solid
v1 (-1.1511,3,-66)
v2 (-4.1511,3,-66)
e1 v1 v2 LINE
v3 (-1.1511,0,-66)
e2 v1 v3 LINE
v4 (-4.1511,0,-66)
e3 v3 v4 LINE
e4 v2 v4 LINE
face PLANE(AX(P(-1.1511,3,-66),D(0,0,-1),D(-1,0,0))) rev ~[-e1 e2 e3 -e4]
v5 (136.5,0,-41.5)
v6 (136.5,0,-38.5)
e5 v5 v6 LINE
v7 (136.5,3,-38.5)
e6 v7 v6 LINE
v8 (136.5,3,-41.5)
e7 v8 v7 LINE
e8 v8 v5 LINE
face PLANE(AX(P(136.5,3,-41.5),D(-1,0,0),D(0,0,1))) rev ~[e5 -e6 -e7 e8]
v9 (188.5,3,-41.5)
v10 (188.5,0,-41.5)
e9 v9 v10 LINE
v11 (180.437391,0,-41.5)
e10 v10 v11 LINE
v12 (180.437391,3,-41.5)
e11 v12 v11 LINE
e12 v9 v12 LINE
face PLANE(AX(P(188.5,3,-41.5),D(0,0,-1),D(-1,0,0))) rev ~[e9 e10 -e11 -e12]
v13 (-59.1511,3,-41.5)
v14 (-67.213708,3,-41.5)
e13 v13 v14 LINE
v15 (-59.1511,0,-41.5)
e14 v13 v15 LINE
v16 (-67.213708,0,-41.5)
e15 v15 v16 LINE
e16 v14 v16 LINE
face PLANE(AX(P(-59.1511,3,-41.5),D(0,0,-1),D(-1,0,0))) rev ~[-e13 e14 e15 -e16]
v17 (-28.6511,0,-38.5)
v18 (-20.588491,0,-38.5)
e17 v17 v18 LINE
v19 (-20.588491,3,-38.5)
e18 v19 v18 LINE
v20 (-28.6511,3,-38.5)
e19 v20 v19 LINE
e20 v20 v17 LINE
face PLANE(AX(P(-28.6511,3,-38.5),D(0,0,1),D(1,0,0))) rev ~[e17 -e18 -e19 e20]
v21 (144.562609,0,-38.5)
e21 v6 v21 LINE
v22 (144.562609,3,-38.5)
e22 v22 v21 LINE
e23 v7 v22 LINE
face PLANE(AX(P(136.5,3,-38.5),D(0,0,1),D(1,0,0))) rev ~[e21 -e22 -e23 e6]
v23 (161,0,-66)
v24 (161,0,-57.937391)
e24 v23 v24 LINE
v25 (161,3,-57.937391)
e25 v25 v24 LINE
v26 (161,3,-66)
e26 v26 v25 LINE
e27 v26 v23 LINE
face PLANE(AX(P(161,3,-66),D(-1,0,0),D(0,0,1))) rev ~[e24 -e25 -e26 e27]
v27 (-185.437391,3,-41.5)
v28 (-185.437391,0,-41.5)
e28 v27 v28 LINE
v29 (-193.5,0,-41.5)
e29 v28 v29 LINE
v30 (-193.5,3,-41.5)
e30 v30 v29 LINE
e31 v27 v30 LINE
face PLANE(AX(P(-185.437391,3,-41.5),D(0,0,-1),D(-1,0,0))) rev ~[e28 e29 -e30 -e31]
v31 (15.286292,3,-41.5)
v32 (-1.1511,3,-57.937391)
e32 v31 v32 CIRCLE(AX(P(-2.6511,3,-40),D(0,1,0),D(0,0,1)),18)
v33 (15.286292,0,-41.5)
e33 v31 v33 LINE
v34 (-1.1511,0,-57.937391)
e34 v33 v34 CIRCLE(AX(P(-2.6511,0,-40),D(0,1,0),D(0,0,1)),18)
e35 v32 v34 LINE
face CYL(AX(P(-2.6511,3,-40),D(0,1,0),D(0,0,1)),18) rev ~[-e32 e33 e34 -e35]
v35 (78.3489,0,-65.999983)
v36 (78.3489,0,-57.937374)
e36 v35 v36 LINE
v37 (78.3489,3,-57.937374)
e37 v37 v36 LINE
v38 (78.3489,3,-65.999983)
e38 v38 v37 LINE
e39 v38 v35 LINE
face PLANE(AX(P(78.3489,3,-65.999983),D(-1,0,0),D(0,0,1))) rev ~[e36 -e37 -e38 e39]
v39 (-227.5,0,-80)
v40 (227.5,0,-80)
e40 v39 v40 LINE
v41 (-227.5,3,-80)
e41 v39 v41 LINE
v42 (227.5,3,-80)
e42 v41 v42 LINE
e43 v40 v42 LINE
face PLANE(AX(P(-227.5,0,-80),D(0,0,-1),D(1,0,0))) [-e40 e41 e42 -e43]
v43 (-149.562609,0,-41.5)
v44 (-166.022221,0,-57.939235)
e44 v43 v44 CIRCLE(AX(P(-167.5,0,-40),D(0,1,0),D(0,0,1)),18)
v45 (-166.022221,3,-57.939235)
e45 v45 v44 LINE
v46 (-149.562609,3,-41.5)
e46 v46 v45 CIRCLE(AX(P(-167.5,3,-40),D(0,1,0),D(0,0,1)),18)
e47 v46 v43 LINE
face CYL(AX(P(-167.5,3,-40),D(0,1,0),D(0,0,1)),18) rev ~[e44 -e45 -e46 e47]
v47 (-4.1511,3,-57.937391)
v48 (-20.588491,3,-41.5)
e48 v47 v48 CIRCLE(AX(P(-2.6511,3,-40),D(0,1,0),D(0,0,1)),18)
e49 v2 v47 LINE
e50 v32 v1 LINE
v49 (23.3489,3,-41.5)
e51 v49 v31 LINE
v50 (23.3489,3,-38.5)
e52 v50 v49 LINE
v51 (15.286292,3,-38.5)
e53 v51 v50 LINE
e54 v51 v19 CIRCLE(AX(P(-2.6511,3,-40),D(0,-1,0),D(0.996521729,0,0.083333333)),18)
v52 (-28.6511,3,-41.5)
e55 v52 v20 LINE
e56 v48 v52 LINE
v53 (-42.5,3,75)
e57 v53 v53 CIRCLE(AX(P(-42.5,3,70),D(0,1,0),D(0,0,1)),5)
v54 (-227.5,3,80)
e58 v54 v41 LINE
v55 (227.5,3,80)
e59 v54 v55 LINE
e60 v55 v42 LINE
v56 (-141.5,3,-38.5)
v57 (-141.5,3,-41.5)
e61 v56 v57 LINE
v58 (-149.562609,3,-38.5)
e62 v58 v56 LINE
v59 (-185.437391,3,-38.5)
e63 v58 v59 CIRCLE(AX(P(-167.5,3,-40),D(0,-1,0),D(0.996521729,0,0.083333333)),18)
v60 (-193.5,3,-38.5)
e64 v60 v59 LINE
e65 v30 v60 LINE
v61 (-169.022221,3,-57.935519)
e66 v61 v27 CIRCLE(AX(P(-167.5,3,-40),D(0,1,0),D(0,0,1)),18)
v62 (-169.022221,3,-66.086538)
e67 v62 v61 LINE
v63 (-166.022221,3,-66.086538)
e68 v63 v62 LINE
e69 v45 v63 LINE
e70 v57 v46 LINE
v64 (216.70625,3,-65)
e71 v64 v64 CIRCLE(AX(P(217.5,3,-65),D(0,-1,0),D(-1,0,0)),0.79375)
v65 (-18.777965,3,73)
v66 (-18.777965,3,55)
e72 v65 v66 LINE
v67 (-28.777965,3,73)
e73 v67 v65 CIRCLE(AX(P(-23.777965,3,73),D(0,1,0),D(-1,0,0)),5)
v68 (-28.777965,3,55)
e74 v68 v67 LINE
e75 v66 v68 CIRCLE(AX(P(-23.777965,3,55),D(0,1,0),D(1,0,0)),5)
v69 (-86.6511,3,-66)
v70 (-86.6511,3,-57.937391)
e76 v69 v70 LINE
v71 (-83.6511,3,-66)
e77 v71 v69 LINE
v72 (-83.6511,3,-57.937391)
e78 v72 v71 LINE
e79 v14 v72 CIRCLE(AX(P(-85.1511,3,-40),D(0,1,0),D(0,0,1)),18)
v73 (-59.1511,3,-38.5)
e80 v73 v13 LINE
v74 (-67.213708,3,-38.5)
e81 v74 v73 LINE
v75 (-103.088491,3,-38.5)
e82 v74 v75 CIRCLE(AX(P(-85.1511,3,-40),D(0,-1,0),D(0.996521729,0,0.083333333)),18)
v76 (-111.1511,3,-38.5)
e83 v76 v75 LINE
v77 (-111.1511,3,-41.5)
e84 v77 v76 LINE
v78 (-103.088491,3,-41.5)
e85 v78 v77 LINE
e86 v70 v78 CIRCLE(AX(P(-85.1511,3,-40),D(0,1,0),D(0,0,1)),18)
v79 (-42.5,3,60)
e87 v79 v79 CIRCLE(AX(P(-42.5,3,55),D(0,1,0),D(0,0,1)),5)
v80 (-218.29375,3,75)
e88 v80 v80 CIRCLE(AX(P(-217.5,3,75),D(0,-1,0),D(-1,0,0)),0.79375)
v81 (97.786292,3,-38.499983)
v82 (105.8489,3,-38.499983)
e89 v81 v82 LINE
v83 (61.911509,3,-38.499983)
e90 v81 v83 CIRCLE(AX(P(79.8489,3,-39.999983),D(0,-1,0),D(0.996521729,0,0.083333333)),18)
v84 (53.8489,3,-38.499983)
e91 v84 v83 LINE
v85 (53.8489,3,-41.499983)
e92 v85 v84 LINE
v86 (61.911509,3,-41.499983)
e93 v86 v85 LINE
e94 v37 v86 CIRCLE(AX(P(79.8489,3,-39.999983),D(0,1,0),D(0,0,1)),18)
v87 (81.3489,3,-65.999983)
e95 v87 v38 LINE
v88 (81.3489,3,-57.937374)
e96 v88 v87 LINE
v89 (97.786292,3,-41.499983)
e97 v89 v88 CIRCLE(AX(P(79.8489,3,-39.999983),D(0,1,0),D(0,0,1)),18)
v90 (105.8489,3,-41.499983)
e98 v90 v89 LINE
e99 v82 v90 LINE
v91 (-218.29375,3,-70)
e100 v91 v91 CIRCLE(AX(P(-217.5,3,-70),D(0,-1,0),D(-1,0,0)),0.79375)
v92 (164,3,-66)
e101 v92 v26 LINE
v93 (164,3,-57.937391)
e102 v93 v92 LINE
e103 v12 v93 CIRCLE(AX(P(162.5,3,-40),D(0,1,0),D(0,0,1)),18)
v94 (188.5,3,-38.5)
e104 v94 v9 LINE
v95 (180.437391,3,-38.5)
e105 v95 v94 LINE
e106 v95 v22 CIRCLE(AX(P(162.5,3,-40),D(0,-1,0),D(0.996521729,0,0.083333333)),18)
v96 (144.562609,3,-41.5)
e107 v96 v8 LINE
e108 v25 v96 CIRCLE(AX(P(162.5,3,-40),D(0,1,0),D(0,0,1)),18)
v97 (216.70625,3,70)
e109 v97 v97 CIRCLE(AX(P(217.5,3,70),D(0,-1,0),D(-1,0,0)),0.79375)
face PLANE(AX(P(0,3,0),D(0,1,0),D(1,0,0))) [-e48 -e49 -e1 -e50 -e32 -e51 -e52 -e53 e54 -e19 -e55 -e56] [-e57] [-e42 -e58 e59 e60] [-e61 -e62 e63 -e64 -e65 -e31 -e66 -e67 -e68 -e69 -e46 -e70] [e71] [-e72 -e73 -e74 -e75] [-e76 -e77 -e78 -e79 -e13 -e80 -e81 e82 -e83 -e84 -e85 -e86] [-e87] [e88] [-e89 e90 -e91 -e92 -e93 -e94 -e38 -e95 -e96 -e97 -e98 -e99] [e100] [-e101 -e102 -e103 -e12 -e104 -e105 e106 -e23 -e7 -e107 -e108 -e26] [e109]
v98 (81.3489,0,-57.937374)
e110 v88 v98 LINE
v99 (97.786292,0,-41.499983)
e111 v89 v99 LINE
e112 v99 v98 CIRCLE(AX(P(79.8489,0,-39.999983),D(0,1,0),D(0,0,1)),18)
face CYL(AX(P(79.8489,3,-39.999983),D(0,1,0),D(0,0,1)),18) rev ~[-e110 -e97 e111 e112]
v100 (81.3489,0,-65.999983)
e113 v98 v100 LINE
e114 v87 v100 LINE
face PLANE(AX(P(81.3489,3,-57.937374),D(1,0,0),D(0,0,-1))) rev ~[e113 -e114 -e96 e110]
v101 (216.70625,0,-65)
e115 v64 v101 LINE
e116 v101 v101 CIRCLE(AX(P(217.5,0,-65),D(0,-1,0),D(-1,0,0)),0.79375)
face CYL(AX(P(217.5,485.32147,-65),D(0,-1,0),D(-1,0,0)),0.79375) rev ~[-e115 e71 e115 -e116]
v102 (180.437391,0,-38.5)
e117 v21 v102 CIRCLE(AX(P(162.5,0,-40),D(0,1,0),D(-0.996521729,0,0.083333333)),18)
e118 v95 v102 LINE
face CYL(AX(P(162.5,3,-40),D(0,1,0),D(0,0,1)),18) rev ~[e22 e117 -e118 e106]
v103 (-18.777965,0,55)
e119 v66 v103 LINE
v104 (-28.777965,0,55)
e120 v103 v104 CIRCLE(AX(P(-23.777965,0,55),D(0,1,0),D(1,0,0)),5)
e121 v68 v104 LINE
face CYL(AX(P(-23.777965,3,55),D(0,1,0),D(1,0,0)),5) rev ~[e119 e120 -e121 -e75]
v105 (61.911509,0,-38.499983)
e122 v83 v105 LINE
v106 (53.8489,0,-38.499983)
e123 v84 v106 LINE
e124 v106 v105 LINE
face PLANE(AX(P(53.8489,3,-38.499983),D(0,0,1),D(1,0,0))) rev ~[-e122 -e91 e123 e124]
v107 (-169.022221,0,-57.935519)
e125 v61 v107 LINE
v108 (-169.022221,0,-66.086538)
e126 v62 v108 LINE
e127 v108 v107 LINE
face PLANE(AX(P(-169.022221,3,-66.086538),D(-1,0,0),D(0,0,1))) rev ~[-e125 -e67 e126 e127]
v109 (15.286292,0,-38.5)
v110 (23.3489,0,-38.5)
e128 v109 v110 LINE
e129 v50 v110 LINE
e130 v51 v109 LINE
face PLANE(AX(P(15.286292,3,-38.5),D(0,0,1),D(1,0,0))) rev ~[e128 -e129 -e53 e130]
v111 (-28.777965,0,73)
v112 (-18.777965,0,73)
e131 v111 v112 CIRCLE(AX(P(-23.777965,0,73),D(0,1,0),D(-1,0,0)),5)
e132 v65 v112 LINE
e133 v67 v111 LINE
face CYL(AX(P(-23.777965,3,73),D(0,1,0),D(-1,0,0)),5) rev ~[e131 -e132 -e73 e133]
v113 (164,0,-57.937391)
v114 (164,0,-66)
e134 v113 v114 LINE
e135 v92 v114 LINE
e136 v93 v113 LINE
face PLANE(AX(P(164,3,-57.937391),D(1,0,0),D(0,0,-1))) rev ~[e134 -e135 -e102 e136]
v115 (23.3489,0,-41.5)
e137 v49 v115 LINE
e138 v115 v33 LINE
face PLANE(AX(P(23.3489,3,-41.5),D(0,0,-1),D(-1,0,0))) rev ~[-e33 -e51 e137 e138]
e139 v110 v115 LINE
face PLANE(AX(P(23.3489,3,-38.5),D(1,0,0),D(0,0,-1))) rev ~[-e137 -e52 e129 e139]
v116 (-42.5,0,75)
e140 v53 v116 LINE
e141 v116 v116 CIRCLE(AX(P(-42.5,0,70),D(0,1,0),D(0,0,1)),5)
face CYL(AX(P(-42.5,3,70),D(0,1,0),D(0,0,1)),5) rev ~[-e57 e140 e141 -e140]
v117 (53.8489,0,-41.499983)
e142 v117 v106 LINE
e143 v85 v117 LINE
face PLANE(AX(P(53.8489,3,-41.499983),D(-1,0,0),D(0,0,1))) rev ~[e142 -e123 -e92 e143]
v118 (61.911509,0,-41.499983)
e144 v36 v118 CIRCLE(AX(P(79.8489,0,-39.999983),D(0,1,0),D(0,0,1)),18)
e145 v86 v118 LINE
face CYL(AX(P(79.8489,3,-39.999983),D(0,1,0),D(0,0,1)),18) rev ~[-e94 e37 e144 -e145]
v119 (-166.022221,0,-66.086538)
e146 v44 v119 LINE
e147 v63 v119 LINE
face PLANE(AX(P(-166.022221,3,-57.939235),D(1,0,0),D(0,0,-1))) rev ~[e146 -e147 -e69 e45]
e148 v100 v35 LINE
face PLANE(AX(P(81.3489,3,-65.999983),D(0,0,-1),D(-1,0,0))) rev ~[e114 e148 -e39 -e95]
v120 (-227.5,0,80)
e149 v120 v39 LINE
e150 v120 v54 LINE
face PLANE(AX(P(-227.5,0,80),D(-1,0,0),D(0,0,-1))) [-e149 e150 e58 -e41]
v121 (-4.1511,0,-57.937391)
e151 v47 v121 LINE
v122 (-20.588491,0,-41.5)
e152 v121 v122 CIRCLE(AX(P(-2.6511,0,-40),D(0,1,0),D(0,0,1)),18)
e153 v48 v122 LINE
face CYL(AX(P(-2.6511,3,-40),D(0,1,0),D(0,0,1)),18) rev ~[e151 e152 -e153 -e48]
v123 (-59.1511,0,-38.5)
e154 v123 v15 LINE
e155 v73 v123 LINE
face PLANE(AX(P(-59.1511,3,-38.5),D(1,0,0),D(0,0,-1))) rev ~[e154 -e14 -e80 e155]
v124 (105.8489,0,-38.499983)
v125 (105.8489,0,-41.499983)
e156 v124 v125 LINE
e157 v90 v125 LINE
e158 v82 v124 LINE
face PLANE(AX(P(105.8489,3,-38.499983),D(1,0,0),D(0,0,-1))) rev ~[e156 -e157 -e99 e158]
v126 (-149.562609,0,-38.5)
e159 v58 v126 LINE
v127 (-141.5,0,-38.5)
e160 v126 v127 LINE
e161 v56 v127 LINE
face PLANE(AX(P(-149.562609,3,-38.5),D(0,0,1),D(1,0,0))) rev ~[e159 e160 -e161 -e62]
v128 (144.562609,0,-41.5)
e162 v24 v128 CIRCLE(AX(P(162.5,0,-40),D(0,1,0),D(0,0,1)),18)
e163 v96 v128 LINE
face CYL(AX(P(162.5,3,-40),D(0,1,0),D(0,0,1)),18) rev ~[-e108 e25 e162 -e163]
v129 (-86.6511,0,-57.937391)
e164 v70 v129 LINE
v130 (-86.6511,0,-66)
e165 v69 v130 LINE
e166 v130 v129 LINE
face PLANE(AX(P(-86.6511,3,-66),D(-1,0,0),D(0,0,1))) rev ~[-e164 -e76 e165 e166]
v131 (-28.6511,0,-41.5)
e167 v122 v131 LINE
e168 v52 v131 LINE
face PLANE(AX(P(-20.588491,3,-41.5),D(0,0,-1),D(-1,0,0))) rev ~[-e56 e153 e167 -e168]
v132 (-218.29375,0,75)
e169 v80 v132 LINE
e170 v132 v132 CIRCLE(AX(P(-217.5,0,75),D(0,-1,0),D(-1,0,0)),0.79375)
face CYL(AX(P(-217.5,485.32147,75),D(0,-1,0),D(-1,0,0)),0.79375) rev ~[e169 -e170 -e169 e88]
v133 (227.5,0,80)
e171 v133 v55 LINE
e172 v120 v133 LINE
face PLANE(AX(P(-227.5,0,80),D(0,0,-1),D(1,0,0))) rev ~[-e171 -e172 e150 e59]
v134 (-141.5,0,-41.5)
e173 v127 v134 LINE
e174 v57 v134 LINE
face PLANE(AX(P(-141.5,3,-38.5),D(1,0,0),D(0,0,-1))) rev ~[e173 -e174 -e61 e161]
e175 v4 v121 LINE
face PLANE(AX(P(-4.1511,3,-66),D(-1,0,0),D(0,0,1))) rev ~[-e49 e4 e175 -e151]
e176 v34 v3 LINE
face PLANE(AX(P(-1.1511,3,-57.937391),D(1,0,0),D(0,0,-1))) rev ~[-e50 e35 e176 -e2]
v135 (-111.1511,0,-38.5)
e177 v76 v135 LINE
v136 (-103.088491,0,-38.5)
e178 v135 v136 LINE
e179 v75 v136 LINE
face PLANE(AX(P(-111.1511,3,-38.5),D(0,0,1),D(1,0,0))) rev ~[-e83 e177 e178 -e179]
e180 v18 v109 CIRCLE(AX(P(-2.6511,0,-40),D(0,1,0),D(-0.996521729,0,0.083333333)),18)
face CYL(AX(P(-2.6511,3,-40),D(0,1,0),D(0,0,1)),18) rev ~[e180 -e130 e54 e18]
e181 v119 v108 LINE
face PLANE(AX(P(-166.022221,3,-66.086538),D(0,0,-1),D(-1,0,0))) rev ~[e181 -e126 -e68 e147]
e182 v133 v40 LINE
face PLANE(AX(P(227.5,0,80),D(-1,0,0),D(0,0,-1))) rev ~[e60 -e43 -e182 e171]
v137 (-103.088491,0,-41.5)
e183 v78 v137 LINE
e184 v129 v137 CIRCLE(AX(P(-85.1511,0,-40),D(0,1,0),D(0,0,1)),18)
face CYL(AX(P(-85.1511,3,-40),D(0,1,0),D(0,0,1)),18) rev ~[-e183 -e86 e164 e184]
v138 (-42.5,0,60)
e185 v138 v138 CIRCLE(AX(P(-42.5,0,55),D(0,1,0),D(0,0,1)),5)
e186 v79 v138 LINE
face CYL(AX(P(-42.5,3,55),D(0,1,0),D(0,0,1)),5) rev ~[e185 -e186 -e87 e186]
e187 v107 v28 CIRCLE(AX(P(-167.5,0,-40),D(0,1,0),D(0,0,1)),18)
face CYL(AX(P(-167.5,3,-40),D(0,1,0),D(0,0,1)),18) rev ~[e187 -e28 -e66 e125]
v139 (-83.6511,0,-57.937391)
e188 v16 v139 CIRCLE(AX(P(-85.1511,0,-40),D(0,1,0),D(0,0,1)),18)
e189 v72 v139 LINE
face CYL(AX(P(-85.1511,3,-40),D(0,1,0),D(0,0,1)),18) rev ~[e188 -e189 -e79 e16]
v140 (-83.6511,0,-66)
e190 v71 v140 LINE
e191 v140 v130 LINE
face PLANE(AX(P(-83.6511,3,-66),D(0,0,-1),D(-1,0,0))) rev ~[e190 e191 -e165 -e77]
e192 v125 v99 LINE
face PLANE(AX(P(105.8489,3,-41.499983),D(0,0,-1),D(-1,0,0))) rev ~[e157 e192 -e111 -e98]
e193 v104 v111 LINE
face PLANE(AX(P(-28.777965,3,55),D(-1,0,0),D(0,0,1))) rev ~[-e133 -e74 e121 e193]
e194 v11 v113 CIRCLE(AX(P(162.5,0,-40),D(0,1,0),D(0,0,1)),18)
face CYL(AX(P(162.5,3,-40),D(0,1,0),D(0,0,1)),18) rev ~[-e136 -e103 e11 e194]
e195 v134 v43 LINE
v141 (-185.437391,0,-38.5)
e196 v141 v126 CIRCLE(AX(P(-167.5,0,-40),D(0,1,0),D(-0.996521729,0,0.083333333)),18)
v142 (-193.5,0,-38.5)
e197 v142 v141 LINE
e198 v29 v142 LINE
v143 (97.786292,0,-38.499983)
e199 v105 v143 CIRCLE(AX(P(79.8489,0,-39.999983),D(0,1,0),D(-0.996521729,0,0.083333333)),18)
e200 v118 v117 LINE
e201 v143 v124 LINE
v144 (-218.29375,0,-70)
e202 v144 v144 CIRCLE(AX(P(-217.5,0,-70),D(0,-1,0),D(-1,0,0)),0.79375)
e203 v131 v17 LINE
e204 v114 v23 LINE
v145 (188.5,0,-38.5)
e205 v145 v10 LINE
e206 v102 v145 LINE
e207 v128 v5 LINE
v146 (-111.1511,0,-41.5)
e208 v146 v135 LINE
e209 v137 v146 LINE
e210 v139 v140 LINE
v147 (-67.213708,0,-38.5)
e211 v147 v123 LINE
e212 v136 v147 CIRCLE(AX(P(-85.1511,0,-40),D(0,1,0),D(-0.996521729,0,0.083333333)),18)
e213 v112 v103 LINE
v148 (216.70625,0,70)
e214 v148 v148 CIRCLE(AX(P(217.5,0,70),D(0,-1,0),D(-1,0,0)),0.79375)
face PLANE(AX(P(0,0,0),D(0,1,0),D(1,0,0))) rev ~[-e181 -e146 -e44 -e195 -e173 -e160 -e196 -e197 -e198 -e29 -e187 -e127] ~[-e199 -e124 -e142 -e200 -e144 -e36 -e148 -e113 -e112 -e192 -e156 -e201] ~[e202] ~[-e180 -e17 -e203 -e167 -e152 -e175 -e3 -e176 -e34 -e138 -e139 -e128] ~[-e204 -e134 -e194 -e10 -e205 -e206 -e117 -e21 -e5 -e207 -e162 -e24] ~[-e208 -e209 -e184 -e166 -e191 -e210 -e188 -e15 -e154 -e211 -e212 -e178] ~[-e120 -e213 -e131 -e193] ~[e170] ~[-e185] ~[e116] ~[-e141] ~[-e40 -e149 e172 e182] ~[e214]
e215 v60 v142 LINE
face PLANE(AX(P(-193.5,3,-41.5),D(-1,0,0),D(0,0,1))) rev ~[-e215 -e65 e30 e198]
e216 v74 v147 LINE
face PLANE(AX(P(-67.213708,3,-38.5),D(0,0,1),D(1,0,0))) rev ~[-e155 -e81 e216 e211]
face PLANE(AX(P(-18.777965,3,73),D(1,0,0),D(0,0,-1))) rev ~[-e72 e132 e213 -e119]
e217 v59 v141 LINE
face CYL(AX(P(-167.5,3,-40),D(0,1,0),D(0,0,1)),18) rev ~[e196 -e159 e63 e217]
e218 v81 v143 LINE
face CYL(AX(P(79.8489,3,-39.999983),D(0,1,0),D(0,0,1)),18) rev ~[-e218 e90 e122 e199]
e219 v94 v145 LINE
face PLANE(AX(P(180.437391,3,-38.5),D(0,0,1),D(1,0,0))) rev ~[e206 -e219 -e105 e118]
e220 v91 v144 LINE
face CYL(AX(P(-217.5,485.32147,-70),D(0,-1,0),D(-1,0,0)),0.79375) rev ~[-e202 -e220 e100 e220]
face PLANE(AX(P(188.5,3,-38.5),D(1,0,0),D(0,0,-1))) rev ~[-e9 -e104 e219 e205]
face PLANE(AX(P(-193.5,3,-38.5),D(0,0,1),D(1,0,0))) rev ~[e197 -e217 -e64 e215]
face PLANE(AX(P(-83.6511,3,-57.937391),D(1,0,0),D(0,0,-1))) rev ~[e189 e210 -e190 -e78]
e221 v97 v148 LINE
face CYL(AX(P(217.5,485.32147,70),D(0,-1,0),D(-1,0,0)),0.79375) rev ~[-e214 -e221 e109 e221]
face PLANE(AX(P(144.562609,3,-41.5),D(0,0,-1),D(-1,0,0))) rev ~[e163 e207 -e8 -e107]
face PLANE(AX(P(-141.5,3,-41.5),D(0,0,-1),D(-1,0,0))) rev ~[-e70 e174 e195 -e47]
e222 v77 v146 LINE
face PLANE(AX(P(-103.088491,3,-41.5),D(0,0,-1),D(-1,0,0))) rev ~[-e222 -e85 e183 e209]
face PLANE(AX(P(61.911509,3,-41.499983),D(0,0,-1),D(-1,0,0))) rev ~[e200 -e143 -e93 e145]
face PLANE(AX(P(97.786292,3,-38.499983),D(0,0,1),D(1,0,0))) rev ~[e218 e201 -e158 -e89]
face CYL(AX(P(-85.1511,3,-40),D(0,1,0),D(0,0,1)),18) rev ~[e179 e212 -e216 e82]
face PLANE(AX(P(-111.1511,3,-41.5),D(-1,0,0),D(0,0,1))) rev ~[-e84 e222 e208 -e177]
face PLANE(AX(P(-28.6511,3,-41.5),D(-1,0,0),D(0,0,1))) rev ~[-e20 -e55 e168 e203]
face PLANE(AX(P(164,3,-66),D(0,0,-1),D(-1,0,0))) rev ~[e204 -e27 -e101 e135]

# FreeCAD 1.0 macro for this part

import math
import FreeCAD as App
import Part
import Sketcher
Q = App.Units.Quantity


def add_polygon(sketch, points):
    """Adds a closed chain of lines whose ends are joined by coincident constraints."""
    first, n = sketch.GeometryCount, len(points)
    for a, b in zip(points, points[1:] + points[:1]):
        sketch.addGeometry(Part.LineSegment(App.Vector(*a, 0), App.Vector(*b, 0)), False)
    for i in range(n):
        sketch.addConstraint(Sketcher.Constraint("Coincident", first + i, 2, first + (i + 1) % n, 1))

doc = App.newDocument("Part")
body = doc.addObject("PartDesign::Body", "Body")

sketch1 = doc.addObject("Sketcher::SketchObject", "Sketch")
body.addObject(sketch1)
sketch1.AttachmentSupport = (doc.XZ_Plane, [""])
sketch1.MapMode = "FlatFace"
add_polygon(sketch1, [(-228, -80), (-228, 80), (228, 80), (228, -80)])
sketch1.addConstraint([
    Sketcher.Constraint("Vertical", 0),
    Sketcher.Constraint("Horizontal", 1),
    Sketcher.Constraint("Vertical", 2),
    Sketcher.Constraint("Horizontal", 3),
    Sketcher.Constraint("Symmetric", 0, 2, 2, 2, -1, 1),
    Sketcher.Constraint("DistanceX", 1, 1, 1, 2, Q("455 mm")),
    Sketcher.Constraint("DistanceY", 0, 1, 0, 2, Q("160 mm")),
])
pad1 = doc.addObject("PartDesign::Pad", "Pad")
body.addObject(pad1)
pad1.Profile = sketch1
pad1.Length = 3
pad1.Reversed = True

sketch2 = doc.addObject("Sketcher::SketchObject", "Sketch001")
body.addObject(sketch2)
sketch2.AttachmentSupport = (doc.XZ_Plane, [""])
sketch2.MapMode = "FlatFace"
sketch2.AttachmentOffset = App.Placement(App.Vector(0, 0, -3), App.Rotation())
sketch2.addGeometry([
    Part.Circle(App.Vector(-168, -40, 0), App.Vector(0, 0, 1), 18),
    Part.Circle(App.Vector(-85, -40, 0), App.Vector(0, 0, 1), 18),
    Part.Circle(App.Vector(-3, -40, 0), App.Vector(0, 0, 1), 18),
    Part.Circle(App.Vector(80, -40, 0), App.Vector(0, 0, 1), 18),
    Part.Circle(App.Vector(162, -40, 0), App.Vector(0, 0, 1), 18),
    Part.Circle(App.Vector(-42, 55, 0), App.Vector(0, 0, 1), 5),
    Part.Circle(App.Vector(-42, 70, 0), App.Vector(0, 0, 1), 5),
    Part.LineSegment(App.Vector(-29, 55, 0), App.Vector(-29, 73, 0)),
    Part.ArcOfCircle(Part.Circle(App.Vector(-24, 73, 0), App.Vector(0, 0, 1), 5), math.radians(0), math.radians(180)),
    Part.LineSegment(App.Vector(-19, 73, 0), App.Vector(-19, 55, 0)),
    Part.ArcOfCircle(Part.Circle(App.Vector(-24, 55, 0), App.Vector(0, 0, 1), 5), math.radians(180), math.radians(360)),
], False)
sketch2.addConstraint([
    Sketcher.Constraint("Tangent", 7, 2, 8, 2),
    Sketcher.Constraint("Tangent", 8, 1, 9, 1),
    Sketcher.Constraint("Tangent", 9, 2, 10, 2),
    Sketcher.Constraint("Tangent", 10, 1, 7, 1),
    Sketcher.Constraint("Vertical", 7),
    Sketcher.Constraint("Vertical", 9),
    Sketcher.Constraint("Equal", 0, 1),
    Sketcher.Constraint("Equal", 1, 2),
    Sketcher.Constraint("Equal", 2, 3),
    Sketcher.Constraint("Equal", 3, 4),
    Sketcher.Constraint("Equal", 5, 6),
    Sketcher.Constraint("Equal", 6, 8),
    Sketcher.Constraint("Horizontal", 0, 3, 1, 3),
    Sketcher.Constraint("Horizontal", 1, 3, 2, 3),
    Sketcher.Constraint("Horizontal", 2, 3, 4, 3),
    Sketcher.Constraint("Horizontal", 5, 3, 10, 3),
    Sketcher.Constraint("Vertical", 5, 3, 6, 3),
    Sketcher.Constraint("Diameter", 0, Q("36 mm")),
    Sketcher.Constraint("Diameter", 5, Q("10 mm")),
    Sketcher.Constraint("DistanceY", 7, 1, 7, 2, Q("18 mm")),
    Sketcher.Constraint("DistanceY", 0, 3, -1, 1, Q("40 mm")),
    Sketcher.Constraint("DistanceY", -1, 1, 5, 3, Q("55 mm")),
    Sketcher.Constraint("DistanceY", -1, 1, 6, 3, Q("70 mm")),
    Sketcher.Constraint("DistanceX", 1, 3, 3, 3, Q("165 mm")),
    Sketcher.Constraint("DistanceX", 0, 3, 4, 3, Q("330 mm")),
    Sketcher.Constraint("DistanceX", 0, 3, 5, 3, Q("125 mm")),
    Sketcher.Constraint("DistanceX", 0, 3, -1, 1, Q("167.5 mm")),
    Sketcher.Constraint("DistanceX", 1, 3, 2, 3, Q("82.5 mm")),
    Sketcher.Constraint("DistanceX", 1, 3, -1, 1, Q("85.1511 mm")),
    Sketcher.Constraint("DistanceY", 3, 3, -1, 1, Q("39.999983 mm")),
    Sketcher.Constraint("DistanceX", 8, 3, -1, 1, Q("23.777965 mm")),
])
pocket1 = doc.addObject("PartDesign::Pocket", "Pocket")
body.addObject(pocket1)
pocket1.Profile = sketch2
pocket1.Length = 3
pocket1.Reversed = True

sketch3 = doc.addObject("Sketcher::SketchObject", "Sketch002")
body.addObject(sketch3)
sketch3.AttachmentSupport = (doc.XZ_Plane, [""])
sketch3.MapMode = "FlatFace"
sketch3.AttachmentOffset = App.Placement(App.Vector(0, 0, -3), App.Rotation())
sketch3.addGeometry([
    Part.Circle(App.Vector(-217.5, 75, 0), App.Vector(0, 0, 1), 0.8),
    Part.Circle(App.Vector(-217.5, -70, 0), App.Vector(0, 0, 1), 0.8),
    Part.Circle(App.Vector(217.5, 70, 0), App.Vector(0, 0, 1), 0.8),
    Part.Circle(App.Vector(217.5, -65, 0), App.Vector(0, 0, 1), 0.8),
], False)
sketch3.addConstraint([
    Sketcher.Constraint("Equal", 0, 1),
    Sketcher.Constraint("Equal", 1, 2),
    Sketcher.Constraint("Equal", 2, 3),
    Sketcher.Constraint("Symmetric", 1, 3, 2, 3, -1, 1),
    Sketcher.Constraint("Vertical", 0, 3, 1, 3),
    Sketcher.Constraint("Vertical", 2, 3, 3, 3),
    Sketcher.Constraint("DistanceY", -1, 1, 0, 3, Q("75 mm")),
    Sketcher.Constraint("DistanceY", 1, 3, -1, 1, Q("70 mm")),
    Sketcher.Constraint("DistanceY", 3, 3, -1, 1, Q("65 mm")),
    Sketcher.Constraint("DistanceX", 0, 3, 2, 3, Q("435 mm")),
    Sketcher.Constraint("Diameter", 0, Q("1.5875 mm")),
])
doc.recompute()
hole = doc.addObject("PartDesign::Hole", "Hole")
body.addObject(hole)
hole.Profile = sketch3
hole.ThreadType = "None"
hole.Diameter = 1.5875
hole.DepthType = "ThroughAll"
hole.Reversed = True

sketch4 = doc.addObject("Sketcher::SketchObject", "Sketch003")
body.addObject(sketch4)
sketch4.AttachmentSupport = (doc.XZ_Plane, [""])
sketch4.MapMode = "FlatFace"
sketch4.AttachmentOffset = App.Placement(App.Vector(0, 0, -3), App.Rotation())
sketch4.addGeometry([
    Part.ArcOfCircle(Part.Circle(App.Vector(-167.5, -40, 0), App.Vector(0, 0, 1), 18), math.radians(-94.85), math.radians(-85.29)),
    Part.LineSegment(App.Vector(-166, -57.9, 0), App.Vector(-166, -66.1, 0)),
    Part.LineSegment(App.Vector(-166, -66.1, 0), App.Vector(-169, -66.1, 0)),
    Part.LineSegment(App.Vector(-169, -66.1, 0), App.Vector(-169, -57.9, 0)),
    Part.LineSegment(App.Vector(-149.6, -38.5, 0), App.Vector(-141.5, -38.5, 0)),
    Part.LineSegment(App.Vector(-141.5, -38.5, 0), App.Vector(-141.5, -41.5, 0)),
    Part.LineSegment(App.Vector(-141.5, -41.5, 0), App.Vector(-149.6, -41.5, 0)),
    Part.ArcOfCircle(Part.Circle(App.Vector(-167.5, -40, 0), App.Vector(0, 0, 1), 18), math.radians(-4.78), math.radians(0)),
    Part.ArcOfCircle(Part.Circle(App.Vector(-167.5, -40, 0), App.Vector(0, 0, 1), 18), math.radians(0), math.radians(4.78)),
    Part.LineSegment(App.Vector(-193.5, -38.5, 0), App.Vector(-185.4, -38.5, 0)),
    Part.ArcOfCircle(Part.Circle(App.Vector(-167.5, -40, 0), App.Vector(0, 0, 1), 18), math.radians(175.22), math.radians(184.78)),
    Part.LineSegment(App.Vector(-185.4, -41.5, 0), App.Vector(-193.5, -41.5, 0)),
    Part.LineSegment(App.Vector(-193.5, -41.5, 0), App.Vector(-193.5, -38.5, 0)),
], False)
sketch4.addConstraint([
    Sketcher.Constraint("Coincident", 0, 2, 1, 1),
    Sketcher.Constraint("Coincident", 1, 2, 2, 1),
    Sketcher.Constraint("Coincident", 2, 2, 3, 1),
    Sketcher.Constraint("Coincident", 3, 2, 0, 1),
    Sketcher.Constraint("Coincident", 4, 2, 5, 1),
    Sketcher.Constraint("Coincident", 5, 2, 6, 1),
    Sketcher.Constraint("Coincident", 6, 2, 7, 1),
    Sketcher.Constraint("Tangent", 7, 2, 8, 1),
    Sketcher.Constraint("Coincident", 8, 2, 4, 1),
    Sketcher.Constraint("Coincident", 9, 2, 10, 1),
    Sketcher.Constraint("Coincident", 10, 2, 11, 1),
    Sketcher.Constraint("Coincident", 11, 2, 12, 1),
    Sketcher.Constraint("Coincident", 12, 2, 9, 1),
    Sketcher.Constraint("Vertical", 1),
    Sketcher.Constraint("Horizontal", 2),
    Sketcher.Constraint("Vertical", 3),
    Sketcher.Constraint("Horizontal", 4),
    Sketcher.Constraint("Vertical", 5),
    Sketcher.Constraint("Horizontal", 6),
    Sketcher.Constraint("Horizontal", 9),
    Sketcher.Constraint("Horizontal", 11),
    Sketcher.Constraint("Vertical", 12),
    Sketcher.Constraint("Coincident", 7, 3, 0, 3),
    Sketcher.Constraint("Coincident", 10, 3, 0, 3),
    Sketcher.Constraint("Equal", 0, 7),
    Sketcher.Constraint("Equal", 7, 8),
    Sketcher.Constraint("Equal", 8, 10),
    Sketcher.Constraint("Horizontal", 10, 3, 7, 2),
    Sketcher.Constraint("Horizontal", 8, 2, 9, 2),
    Sketcher.Constraint("Horizontal", 6, 2, 10, 2),
    Sketcher.Constraint("Vertical", 6, 2, 8, 2),
    Sketcher.Constraint("Equal", 6, 9),
    Sketcher.Constraint("Equal", 2, 5),
    Sketcher.Constraint("Radius", 0, Q("18 mm")),
    Sketcher.Constraint("DistanceX", 2, 2, 2, 1, Q("3 mm")),
    Sketcher.Constraint("DistanceY", 0, 3, -1, 1, Q("40 mm")),
    Sketcher.Constraint("DistanceX", 10, 3, 4, 2, Q("26 mm")),
    Sketcher.Constraint("DistanceX", 0, 3, -1, 1, Q("167.5 mm")),
    Sketcher.Constraint("DistanceY", 3, 1, 3, 2, Q("8.151019 mm")),
    Sketcher.Constraint("DistanceY", 1, 2, 1, 1, Q("8.147303 mm")),
])
pocket2 = doc.addObject("PartDesign::Pocket", "Pocket001")
body.addObject(pocket2)
pocket2.Profile = sketch4
pocket2.Length = 10
pocket2.Reversed = True

sketch5 = doc.addObject("Sketcher::SketchObject", "Sketch004")
body.addObject(sketch5)
sketch5.AttachmentSupport = (doc.XZ_Plane, [""])
sketch5.MapMode = "FlatFace"
sketch5.AttachmentOffset = App.Placement(App.Vector(0, 0, -3), App.Rotation())
sketch5.addGeometry([
    Part.ArcOfCircle(Part.Circle(App.Vector(-85.2, -40, 0), App.Vector(0, 0, 1), 18), math.radians(0), math.radians(4.78)),
    Part.LineSegment(App.Vector(-67.2, -38.5, 0), App.Vector(-59.2, -38.5, 0)),
    Part.LineSegment(App.Vector(-59.2, -38.5, 0), App.Vector(-59.2, -41.5, 0)),
    Part.LineSegment(App.Vector(-59.2, -41.5, 0), App.Vector(-67.2, -41.5, 0)),
    Part.ArcOfCircle(Part.Circle(App.Vector(-85.2, -40, 0), App.Vector(0, 0, 1), 18), math.radians(-4.78), math.radians(0)),
    Part.LineSegment(App.Vector(-111.2, -38.5, 0), App.Vector(-103.1, -38.5, 0)),
    Part.ArcOfCircle(Part.Circle(App.Vector(-85.2, -40, 0), App.Vector(0, 0, 1), 18), math.radians(175.22), math.radians(184.78)),
    Part.LineSegment(App.Vector(-103.1, -41.5, 0), App.Vector(-111.2, -41.5, 0)),
    Part.LineSegment(App.Vector(-111.2, -41.5, 0), App.Vector(-111.2, -38.5, 0)),
    Part.LineSegment(App.Vector(-86.7, -66, 0), App.Vector(-86.7, -57.9, 0)),
    Part.ArcOfCircle(Part.Circle(App.Vector(-85.2, -40, 0), App.Vector(0, 0, 1), 18), math.radians(-94.78), math.radians(-85.22)),
    Part.LineSegment(App.Vector(-83.7, -57.9, 0), App.Vector(-83.7, -66, 0)),
    Part.LineSegment(App.Vector(-83.7, -66, 0), App.Vector(-86.7, -66, 0)),
    Part.ArcOfCircle(Part.Circle(App.Vector(-2.7, -40, 0), App.Vector(0, 0, 1), 18), math.radians(-94.78), math.radians(-85.22)),
    Part.LineSegment(App.Vector(-1.2, -57.9, 0), App.Vector(-1.2, -66, 0)),
    Part.LineSegment(App.Vector(-1.2, -66, 0), App.Vector(-4.2, -66, 0)),
    Part.LineSegment(App.Vector(-4.2, -66, 0), App.Vector(-4.2, -57.9, 0)),
    Part.LineSegment(App.Vector(15.3, -38.5, 0), App.Vector(23.3, -38.5, 0)),
    Part.LineSegment(App.Vector(23.3, -38.5, 0), App.Vector(23.3, -41.5, 0)),
    Part.LineSegment(App.Vector(23.3, -41.5, 0), App.Vector(15.3, -41.5, 0)),
    Part.ArcOfCircle(Part.Circle(App.Vector(-2.7, -40, 0), App.Vector(0, 0, 1), 18), math.radians(-4.78), math.radians(0)),
    Part.ArcOfCircle(Part.Circle(App.Vector(-2.7, -40, 0), App.Vector(0, 0, 1), 18), math.radians(0), math.radians(4.78)),
    Part.LineSegment(App.Vector(-28.7, -38.5, 0), App.Vector(-20.6, -38.5, 0)),
    Part.ArcOfCircle(Part.Circle(App.Vector(-2.7, -40, 0), App.Vector(0, 0, 1), 18), math.radians(175.22), math.radians(184.78)),
    Part.LineSegment(App.Vector(-20.6, -41.5, 0), App.Vector(-28.7, -41.5, 0)),
    Part.LineSegment(App.Vector(-28.7, -41.5, 0), App.Vector(-28.7, -38.5, 0)),
    Part.ArcOfCircle(Part.Circle(App.Vector(79.8, -40, 0), App.Vector(0, 0, 1), 18), math.radians(-94.78), math.radians(-85.22)),
    Part.LineSegment(App.Vector(81.3, -57.9, 0), App.Vector(81.3, -66, 0)),
    Part.LineSegment(App.Vector(81.3, -66, 0), App.Vector(78.3, -66, 0)),
    Part.LineSegment(App.Vector(78.3, -66, 0), App.Vector(78.3, -57.9, 0)),
    Part.LineSegment(App.Vector(97.8, -38.5, 0), App.Vector(105.8, -38.5, 0)),
    Part.LineSegment(App.Vector(105.8, -38.5, 0), App.Vector(105.8, -41.5, 0)),
    Part.LineSegment(App.Vector(105.8, -41.5, 0), App.Vector(97.8, -41.5, 0)),
    Part.ArcOfCircle(Part.Circle(App.Vector(79.8, -40, 0), App.Vector(0, 0, 1), 18), math.radians(-4.78), math.radians(0)),
    Part.ArcOfCircle(Part.Circle(App.Vector(79.8, -40, 0), App.Vector(0, 0, 1), 18), math.radians(0), math.radians(4.78)),
    Part.LineSegment(App.Vector(53.8, -38.5, 0), App.Vector(61.9, -38.5, 0)),
    Part.ArcOfCircle(Part.Circle(App.Vector(79.8, -40, 0), App.Vector(0, 0, 1), 18), math.radians(175.22), math.radians(184.78)),
    Part.LineSegment(App.Vector(61.9, -41.5, 0), App.Vector(53.8, -41.5, 0)),
    Part.LineSegment(App.Vector(53.8, -41.5, 0), App.Vector(53.8, -38.5, 0)),
    Part.LineSegment(App.Vector(136.5, -38.5, 0), App.Vector(144.6, -38.5, 0)),
    Part.ArcOfCircle(Part.Circle(App.Vector(162.5, -40, 0), App.Vector(0, 0, 1), 18), math.radians(175.22), math.radians(184.78)),
    Part.LineSegment(App.Vector(144.6, -41.5, 0), App.Vector(136.5, -41.5, 0)),
    Part.LineSegment(App.Vector(136.5, -41.5, 0), App.Vector(136.5, -38.5, 0)),
    Part.ArcOfCircle(Part.Circle(App.Vector(162.5, -40, 0), App.Vector(0, 0, 1), 18), math.radians(-94.78), math.radians(-85.22)),
    Part.LineSegment(App.Vector(164, -57.9, 0), App.Vector(164, -66, 0)),
    Part.LineSegment(App.Vector(164, -66, 0), App.Vector(161, -66, 0)),
    Part.LineSegment(App.Vector(161, -66, 0), App.Vector(161, -57.9, 0)),
    Part.LineSegment(App.Vector(180.4, -38.5, 0), App.Vector(188.5, -38.5, 0)),
    Part.LineSegment(App.Vector(188.5, -38.5, 0), App.Vector(188.5, -41.5, 0)),
    Part.LineSegment(App.Vector(188.5, -41.5, 0), App.Vector(180.4, -41.5, 0)),
    Part.ArcOfCircle(Part.Circle(App.Vector(162.5, -40, 0), App.Vector(0, 0, 1), 18), math.radians(-4.78), math.radians(0)),
    Part.ArcOfCircle(Part.Circle(App.Vector(162.5, -40, 0), App.Vector(0, 0, 1), 18), math.radians(0), math.radians(4.78)),
], False)
sketch5.addConstraint([
    Sketcher.Constraint("Coincident", 0, 2, 1, 1),
    Sketcher.Constraint("Coincident", 1, 2, 2, 1),
    Sketcher.Constraint("Coincident", 2, 2, 3, 1),
    Sketcher.Constraint("Coincident", 3, 2, 4, 1),
    Sketcher.Constraint("Tangent", 4, 2, 0, 1),
    Sketcher.Constraint("Coincident", 5, 2, 6, 1),
    Sketcher.Constraint("Coincident", 6, 2, 7, 1),
    Sketcher.Constraint("Coincident", 7, 2, 8, 1),
    Sketcher.Constraint("Coincident", 8, 2, 5, 1),
    Sketcher.Constraint("Coincident", 9, 2, 10, 1),
    Sketcher.Constraint("Coincident", 10, 2, 11, 1),
    Sketcher.Constraint("Coincident", 11, 2, 12, 1),
    Sketcher.Constraint("Coincident", 12, 2, 9, 1),
    Sketcher.Constraint("Coincident", 13, 2, 14, 1),
    Sketcher.Constraint("Coincident", 14, 2, 15, 1),
    Sketcher.Constraint("Coincident", 15, 2, 16, 1),
    Sketcher.Constraint("Coincident", 16, 2, 13, 1),
    Sketcher.Constraint("Coincident", 17, 2, 18, 1),
    Sketcher.Constraint("Coincident", 18, 2, 19, 1),
    Sketcher.Constraint("Coincident", 19, 2, 20, 1),
    Sketcher.Constraint("Tangent", 20, 2, 21, 1),
    Sketcher.Constraint("Coincident", 21, 2, 17, 1),
    Sketcher.Constraint("Coincident", 22, 2, 23, 1),
    Sketcher.Constraint("Coincident", 23, 2, 24, 1),
    Sketcher.Constraint("Coincident", 24, 2, 25, 1),
    Sketcher.Constraint("Coincident", 25, 2, 22, 1),
    Sketcher.Constraint("Coincident", 26, 2, 27, 1),
    Sketcher.Constraint("Coincident", 27, 2, 28, 1),
    Sketcher.Constraint("Coincident", 28, 2, 29, 1),
    Sketcher.Constraint("Coincident", 29, 2, 26, 1),
    Sketcher.Constraint("Coincident", 30, 2, 31, 1),
    Sketcher.Constraint("Coincident", 31, 2, 32, 1),
    Sketcher.Constraint("Coincident", 32, 2, 33, 1),
    Sketcher.Constraint("Tangent", 33, 2, 34, 1),
    Sketcher.Constraint("Coincident", 34, 2, 30, 1),
    Sketcher.Constraint("Coincident", 35, 2, 36, 1),
    Sketcher.Constraint("Coincident", 36, 2, 37, 1),
    Sketcher.Constraint("Coincident", 37, 2, 38, 1),
    Sketcher.Constraint("Coincident", 38, 2, 35, 1),
    Sketcher.Constraint("Coincident", 39, 2, 40, 1),
    Sketcher.Constraint("Coincident", 40, 2, 41, 1),
    Sketcher.Constraint("Coincident", 41, 2, 42, 1),
    Sketcher.Constraint("Coincident", 42, 2, 39, 1),
    Sketcher.Constraint("Coincident", 43, 2, 44, 1),
    Sketcher.Constraint("Coincident", 44, 2, 45, 1),
    Sketcher.Constraint("Coincident", 45, 2, 46, 1),
    Sketcher.Constraint("Coincident", 46, 2, 43, 1),
    Sketcher.Constraint("Coincident", 47, 2, 48, 1),
    Sketcher.Constraint("Coincident", 48, 2, 49, 1),
    Sketcher.Constraint("Coincident", 49, 2, 50, 1),
    Sketcher.Constraint("Tangent", 50, 2, 51, 1),
    Sketcher.Constraint("Coincident", 51, 2, 47, 1),
    Sketcher.Constraint("Horizontal", 1),
    Sketcher.Constraint("Vertical", 2),
    Sketcher.Constraint("Horizontal", 3),
    Sketcher.Constraint("Horizontal", 5),
    Sketcher.Constraint("Horizontal", 7),
    Sketcher.Constraint("Vertical", 8),
    Sketcher.Constraint("Vertical", 9),
    Sketcher.Constraint("Vertical", 11),
    Sketcher.Constraint("Horizontal", 12),
    Sketcher.Constraint("Vertical", 14),
    Sketcher.Constraint("Horizontal", 15),
    Sketcher.Constraint("Vertical", 16),
    Sketcher.Constraint("Horizontal", 17),
    Sketcher.Constraint("Vertical", 18),
    Sketcher.Constraint("Horizontal", 19),
    Sketcher.Constraint("Horizontal", 22),
    Sketcher.Constraint("Horizontal", 24),
    Sketcher.Constraint("Vertical", 25),
    Sketcher.Constraint("Vertical", 27),
    Sketcher.Constraint("Horizontal", 28),
    Sketcher.Constraint("Vertical", 29),
    Sketcher.Constraint("Horizontal", 30),
    Sketcher.Constraint("Vertical", 31),
    Sketcher.Constraint("Horizontal", 32),
    Sketcher.Constraint("Horizontal", 35),
    Sketcher.Constraint("Horizontal", 37),
    Sketcher.Constraint("Vertical", 38),
    Sketcher.Constraint("Horizontal", 39),
    Sketcher.Constraint("Horizontal", 41),
    Sketcher.Constraint("Vertical", 42),
    Sketcher.Constraint("Vertical", 44),
    Sketcher.Constraint("Horizontal", 45),
    Sketcher.Constraint("Vertical", 46),
    Sketcher.Constraint("Horizontal", 47),
    Sketcher.Constraint("Vertical", 48),
    Sketcher.Constraint("Horizontal", 49),
    Sketcher.Constraint("Coincident", 6, 3, 0, 3),
    Sketcher.Constraint("Coincident", 10, 3, 0, 3),
    Sketcher.Constraint("Coincident", 20, 3, 13, 3),
    Sketcher.Constraint("Coincident", 23, 3, 13, 3),
    Sketcher.Constraint("Coincident", 33, 3, 26, 3),
    Sketcher.Constraint("Coincident", 36, 3, 26, 3),
    Sketcher.Constraint("Coincident", 43, 3, 40, 3),
    Sketcher.Constraint("Coincident", 50, 3, 40, 3),
    Sketcher.Constraint("Equal", 0, 4),
    Sketcher.Constraint("Equal", 4, 6),
    Sketcher.Constraint("Equal", 6, 10),
    Sketcher.Constraint("Equal", 10, 13),
    Sketcher.Constraint("Equal", 13, 20),
    Sketcher.Constraint("Equal", 20, 21),
    Sketcher.Constraint("Equal", 21, 23),
    Sketcher.Constraint("Equal", 23, 26),
    Sketcher.Constraint("Equal", 26, 33),
    Sketcher.Constraint("Equal", 33, 34),
    Sketcher.Constraint("Equal", 34, 36),
    Sketcher.Constraint("Equal", 36, 40),
    Sketcher.Constraint("Equal", 40, 43),
    Sketcher.Constraint("Equal", 43, 50),
    Sketcher.Constraint("Equal", 50, 51),
    Sketcher.Constraint("Horizontal", 10, 3, 13, 3),
    Sketcher.Constraint("Horizontal", 23, 3, 40, 3),
    Sketcher.Constraint("Horizontal", 51, 3, 4, 2),
    Sketcher.Constraint("Horizontal", 1, 2, 5, 2),
    Sketcher.Constraint("Horizontal", 3, 2, 6, 2),
    Sketcher.Constraint("Horizontal", 9, 2, 10, 2),
    Sketcher.Constraint("Horizontal", 10, 2, 13, 2),
    Sketcher.Constraint("Horizontal", 12, 2, 14, 2),
    Sketcher.Constraint("Horizontal", 13, 2, 16, 2),
    Sketcher.Constraint("Horizontal", 8, 2, 17, 2),
    Sketcher.Constraint("Horizontal", 7, 2, 18, 2),
    Sketcher.Constraint("Horizontal", 4, 2, 20, 2),
    Sketcher.Constraint("Horizontal", 21, 2, 22, 2),
    Sketcher.Constraint("Horizontal", 19, 2, 23, 2),
    Sketcher.Constraint("Horizontal", 26, 2, 29, 2),
    Sketcher.Constraint("Horizontal", 36, 3, 33, 2),
    Sketcher.Constraint("Horizontal", 34, 2, 35, 2),
    Sketcher.Constraint("Horizontal", 32, 2, 36, 2),
    Sketcher.Constraint("Horizontal", 25, 2, 39, 2),
    Sketcher.Constraint("Horizontal", 24, 2, 40, 2),
    Sketcher.Constraint("Horizontal", 16, 2, 43, 2),
    Sketcher.Constraint("Horizontal", 15, 2, 44, 2),
    Sketcher.Constraint("Horizontal", 43, 2, 46, 2),
    Sketcher.Constraint("Horizontal", 42, 2, 47, 2),
    Sketcher.Constraint("Horizontal", 41, 2, 48, 2),
    Sketcher.Constraint("Horizontal", 20, 2, 50, 2),
    Sketcher.Constraint("Vertical", 0, 2, 3, 2),
    Sketcher.Constraint("Vertical", 32, 2, 34, 2),
    Sketcher.Constraint("Equal", 3, 5),
    Sketcher.Constraint("Equal", 7, 17),
    Sketcher.Constraint("Equal", 19, 22),
    Sketcher.Constraint("Equal", 15, 28),
    Sketcher.Constraint("Equal", 24, 30),
    Sketcher.Constraint("Equal", 32, 35),
    Sketcher.Constraint("Equal", 37, 39),
    Sketcher.Constraint("Equal", 41, 47),
    Sketcher.Constraint("Equal", 45, 2),
    Sketcher.Constraint("Equal", 49, 9),
    Sketcher.Constraint("Equal", 16, 27),
    Sketcher.Constraint("Equal", 25, 31),
    Sketcher.Constraint("Radius", 0, Q("18 mm")),
    Sketcher.Constraint("DistanceX", 12, 2, 12, 1, Q("3 mm")),
    Sketcher.Constraint("DistanceY", 0, 3, -1, 1, Q("40 mm")),
    Sketcher.Constraint("DistanceY", 11, 2, -1, 1, Q("66 mm")),
    Sketcher.Constraint("DistanceX", -1, 1, 43, 2, Q("164 mm")),
    Sketcher.Constraint("DistanceX", 0, 3, -1, 1, Q("85.1511 mm")),
    Sketcher.Constraint("DistanceX", 13, 3, -1, 1, Q("2.6511 mm")),
    Sketcher.Constraint("DistanceX", -1, 1, 26, 3, Q("79.8489 mm")),
    Sketcher.Constraint("DistanceY", 26, 3, -1, 1, Q("39.999983 mm")),
])
pocket3 = doc.addObject("PartDesign::Pocket", "Pocket002")
body.addObject(pocket3)
pocket3.Profile = sketch5
pocket3.Length = 10
pocket3.Reversed = True

doc.recompute()
